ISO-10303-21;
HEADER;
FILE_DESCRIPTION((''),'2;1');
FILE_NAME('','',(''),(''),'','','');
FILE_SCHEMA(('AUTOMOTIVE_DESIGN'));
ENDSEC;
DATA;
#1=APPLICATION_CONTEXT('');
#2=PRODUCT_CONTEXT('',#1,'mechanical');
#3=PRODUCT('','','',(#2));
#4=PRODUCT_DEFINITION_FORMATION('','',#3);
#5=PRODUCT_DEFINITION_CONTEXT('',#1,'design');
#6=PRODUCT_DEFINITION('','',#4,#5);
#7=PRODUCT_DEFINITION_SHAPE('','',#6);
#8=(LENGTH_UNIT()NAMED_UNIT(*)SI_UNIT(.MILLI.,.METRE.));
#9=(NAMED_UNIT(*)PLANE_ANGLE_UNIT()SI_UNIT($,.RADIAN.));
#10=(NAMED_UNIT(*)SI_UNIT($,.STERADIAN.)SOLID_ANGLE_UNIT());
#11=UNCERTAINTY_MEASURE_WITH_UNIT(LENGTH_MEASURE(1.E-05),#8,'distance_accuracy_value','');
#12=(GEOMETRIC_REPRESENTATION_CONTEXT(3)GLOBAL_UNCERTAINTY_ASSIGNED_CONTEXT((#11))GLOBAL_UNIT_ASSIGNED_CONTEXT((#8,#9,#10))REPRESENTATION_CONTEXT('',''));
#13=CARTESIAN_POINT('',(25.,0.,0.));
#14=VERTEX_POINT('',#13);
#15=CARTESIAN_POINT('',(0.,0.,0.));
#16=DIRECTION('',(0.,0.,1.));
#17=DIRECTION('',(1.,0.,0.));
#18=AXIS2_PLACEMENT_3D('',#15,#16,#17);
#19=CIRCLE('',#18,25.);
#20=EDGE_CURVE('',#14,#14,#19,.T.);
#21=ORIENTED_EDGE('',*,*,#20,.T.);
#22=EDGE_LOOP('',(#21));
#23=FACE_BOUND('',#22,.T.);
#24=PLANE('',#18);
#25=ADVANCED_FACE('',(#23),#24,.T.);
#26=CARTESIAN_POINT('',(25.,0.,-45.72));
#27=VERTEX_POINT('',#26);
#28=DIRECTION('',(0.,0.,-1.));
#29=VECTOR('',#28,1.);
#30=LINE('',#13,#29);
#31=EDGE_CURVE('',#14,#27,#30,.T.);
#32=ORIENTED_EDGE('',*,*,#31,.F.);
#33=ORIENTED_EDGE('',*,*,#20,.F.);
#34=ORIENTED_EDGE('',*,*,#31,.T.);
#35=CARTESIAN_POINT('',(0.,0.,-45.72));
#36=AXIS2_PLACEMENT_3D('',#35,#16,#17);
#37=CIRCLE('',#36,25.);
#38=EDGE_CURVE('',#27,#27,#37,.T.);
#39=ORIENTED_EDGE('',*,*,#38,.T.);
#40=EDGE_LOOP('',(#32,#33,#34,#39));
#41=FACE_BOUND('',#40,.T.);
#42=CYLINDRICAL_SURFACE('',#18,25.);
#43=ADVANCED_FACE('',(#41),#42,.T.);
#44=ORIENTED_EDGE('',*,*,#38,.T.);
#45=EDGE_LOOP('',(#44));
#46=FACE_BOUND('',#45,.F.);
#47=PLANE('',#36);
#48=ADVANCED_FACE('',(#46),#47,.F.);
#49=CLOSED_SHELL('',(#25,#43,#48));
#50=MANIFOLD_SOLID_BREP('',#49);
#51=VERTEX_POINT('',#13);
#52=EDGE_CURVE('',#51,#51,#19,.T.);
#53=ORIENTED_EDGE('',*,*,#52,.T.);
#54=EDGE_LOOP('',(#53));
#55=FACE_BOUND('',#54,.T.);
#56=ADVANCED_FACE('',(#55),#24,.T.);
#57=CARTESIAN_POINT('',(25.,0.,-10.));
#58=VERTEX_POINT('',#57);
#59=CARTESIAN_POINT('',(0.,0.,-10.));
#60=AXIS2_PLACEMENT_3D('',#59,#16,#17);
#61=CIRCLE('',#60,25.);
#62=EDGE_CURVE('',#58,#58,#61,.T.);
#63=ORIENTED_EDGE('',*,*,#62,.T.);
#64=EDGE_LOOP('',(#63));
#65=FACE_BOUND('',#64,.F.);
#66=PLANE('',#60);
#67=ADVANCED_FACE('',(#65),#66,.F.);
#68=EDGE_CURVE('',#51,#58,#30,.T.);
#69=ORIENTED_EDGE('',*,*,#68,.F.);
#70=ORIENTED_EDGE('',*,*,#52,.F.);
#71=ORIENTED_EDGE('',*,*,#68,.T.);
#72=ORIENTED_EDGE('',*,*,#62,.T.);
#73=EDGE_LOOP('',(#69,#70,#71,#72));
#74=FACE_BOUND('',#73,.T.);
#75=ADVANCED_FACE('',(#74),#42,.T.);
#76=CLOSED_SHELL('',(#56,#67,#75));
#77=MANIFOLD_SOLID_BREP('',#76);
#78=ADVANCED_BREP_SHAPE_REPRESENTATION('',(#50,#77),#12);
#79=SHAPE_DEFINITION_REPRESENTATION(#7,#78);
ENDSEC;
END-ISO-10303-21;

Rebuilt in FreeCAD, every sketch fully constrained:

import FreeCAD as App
import Part
import Sketcher

doc = App.newDocument("Part")
body = doc.addObject("PartDesign::Body", "Body")

# Sketch on XY plane
sketch1 = body.newObject("Sketcher::SketchObject", "Sketch")
sketch1.AttachmentSupport = (doc.getObject("XY_Plane"), [""])
sketch1.MapMode = "FlatFace"
sketch1.addGeometry(Part.Circle(App.Vector(0, 0, 0), App.Vector(0, 0, 1), 25), False)
sketch1.addConstraint(Sketcher.Constraint("Coincident", 0, 3, -1, 1))
sketch1.addConstraint(Sketcher.Constraint("Diameter", 0, 50.0))
pad1 = body.newObject("PartDesign::Pad", "Pad")
pad1.Profile = sketch1
pad1.Length = 10
pad1.Reversed = True
body2 = doc.addObject("PartDesign::Body", "Body001")

# Sketch on XY plane
sketch2 = body2.newObject("Sketcher::SketchObject", "Sketch001")
sketch2.AttachmentSupport = (doc.getObject("XY_Plane001"), [""])
sketch2.MapMode = "FlatFace"
sketch2.addGeometry(Part.Circle(App.Vector(0, 0, 0), App.Vector(0, 0, 1), 25), False)
sketch2.addConstraint(Sketcher.Constraint("Coincident", 0, 3, -1, 1))
sketch2.addConstraint(Sketcher.Constraint("Diameter", 0, 50.0))
pad2 = body2.newObject("PartDesign::Pad", "Pad001")
pad2.Profile = sketch2
pad2.Length = 45.72
pad2.Reversed = True

doc.recompute()
